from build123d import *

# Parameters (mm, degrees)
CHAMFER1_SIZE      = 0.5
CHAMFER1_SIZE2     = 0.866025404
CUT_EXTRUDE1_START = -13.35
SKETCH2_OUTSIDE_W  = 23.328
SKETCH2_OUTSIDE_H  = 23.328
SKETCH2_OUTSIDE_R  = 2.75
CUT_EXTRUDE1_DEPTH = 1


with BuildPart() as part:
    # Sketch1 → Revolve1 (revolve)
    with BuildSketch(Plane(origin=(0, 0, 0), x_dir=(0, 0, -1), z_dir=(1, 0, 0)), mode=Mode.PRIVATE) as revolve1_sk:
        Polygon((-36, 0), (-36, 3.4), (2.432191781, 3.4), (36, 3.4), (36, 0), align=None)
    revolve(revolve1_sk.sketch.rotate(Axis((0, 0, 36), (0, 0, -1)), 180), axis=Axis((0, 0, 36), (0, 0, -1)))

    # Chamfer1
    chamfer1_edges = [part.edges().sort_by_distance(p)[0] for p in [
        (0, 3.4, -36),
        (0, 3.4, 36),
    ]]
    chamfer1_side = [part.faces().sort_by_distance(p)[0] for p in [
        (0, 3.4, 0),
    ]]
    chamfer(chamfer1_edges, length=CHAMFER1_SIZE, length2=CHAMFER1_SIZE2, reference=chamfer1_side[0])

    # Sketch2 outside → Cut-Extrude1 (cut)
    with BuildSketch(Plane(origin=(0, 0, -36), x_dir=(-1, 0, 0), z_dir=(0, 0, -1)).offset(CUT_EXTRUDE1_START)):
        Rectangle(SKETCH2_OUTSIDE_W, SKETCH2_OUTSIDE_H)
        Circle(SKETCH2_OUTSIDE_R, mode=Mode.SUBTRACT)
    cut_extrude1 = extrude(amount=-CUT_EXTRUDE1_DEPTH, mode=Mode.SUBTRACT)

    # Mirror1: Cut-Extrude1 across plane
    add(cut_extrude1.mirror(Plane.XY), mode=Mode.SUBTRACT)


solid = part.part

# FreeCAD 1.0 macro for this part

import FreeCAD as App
import Part
import Sketcher
Q = App.Units.Quantity


def edges_at(feature, points):
    """Names of the edges that pass closest to the given points."""
    edges = feature.Shape.Edges
    near = lambda p: min(range(len(edges)), key=lambda i: edges[i].distToShape(Part.Vertex(*p))[0])
    return sorted({f"Edge{near(p) + 1}" for p in points})

doc = App.newDocument("Part")
body = doc.addObject("PartDesign::Body", "Body")

sketch1 = body.newObject("Sketcher::SketchObject", "Sketch")
sketch1.AttachmentSupport = (doc.getObject("YZ_Plane"), [""])
sketch1.MapMode = "FlatFace"
sketch1.addGeometry(Part.LineSegment(App.Vector(3.4, 36, 0), App.Vector(0, 36, 0)), False)
sketch1.addGeometry(Part.LineSegment(App.Vector(0, 36, 0), App.Vector(0, -36, 0)), False)
sketch1.addGeometry(Part.LineSegment(App.Vector(0, -36, 0), App.Vector(3.4, -36, 0)), False)
sketch1.addGeometry(Part.LineSegment(App.Vector(3.4, -36, 0), App.Vector(3.4, 36, 0)), False)
sketch1.addConstraint(Sketcher.Constraint("Coincident", 0, 2, 1, 1))
sketch1.addConstraint(Sketcher.Constraint("Coincident", 1, 2, 2, 1))
sketch1.addConstraint(Sketcher.Constraint("Coincident", 2, 2, 3, 1))
sketch1.addConstraint(Sketcher.Constraint("Coincident", 3, 2, 0, 1))
sketch1.addConstraint(Sketcher.Constraint("Horizontal", 0))
sketch1.addConstraint(Sketcher.Constraint("Vertical", 1))
sketch1.addConstraint(Sketcher.Constraint("Horizontal", 2))
sketch1.addConstraint(Sketcher.Constraint("Vertical", 3))
sketch1.addConstraint(Sketcher.Constraint("Symmetric", 0, 2, 1, 2, -1, 1))
sketch1.addConstraint(Sketcher.Constraint("DistanceY", 1, 2, 1, 1, Q("72 mm")))
sketch1.addConstraint(Sketcher.Constraint("DistanceX", 0, 2, 0, 1, Q("3.4 mm")))
revolution = body.newObject("PartDesign::Revolution", "Revolution")
revolution.Profile = sketch1
revolution.ReferenceAxis = (sketch1, ["V_Axis"])
revolution.Angle = 360
doc.recompute()

chamfer = body.newObject("PartDesign::Chamfer", "Chamfer")
chamfer.Base = (revolution, edges_at(revolution, [(0, 3.4, -36), (0, 3.4, 36)]))
chamfer.ChamferType = "Two distances"
chamfer.Size = 0.5
chamfer.Size2 = 0.866025
chamfer.FlipDirection = True

sketch2 = body.newObject("Sketcher::SketchObject", "Sketch001")
sketch2.AttachmentSupport = (doc.getObject("XY_Plane"), [""])
sketch2.MapMode = "FlatFace"
sketch2.AttachmentOffset = App.Placement(App.Vector(0, 0, -22.65), App.Rotation())
sketch2.addGeometry(Part.LineSegment(App.Vector(11.7, 11.7, 0), App.Vector(11.7, -11.7, 0)), False)
sketch2.addGeometry(Part.LineSegment(App.Vector(11.7, -11.7, 0), App.Vector(-11.7, -11.7, 0)), False)
sketch2.addGeometry(Part.LineSegment(App.Vector(-11.7, -11.7, 0), App.Vector(-11.7, 11.7, 0)), False)
sketch2.addGeometry(Part.LineSegment(App.Vector(-11.7, 11.7, 0), App.Vector(11.7, 11.7, 0)), False)
sketch2.addGeometry(Part.Circle(App.Vector(0, 0, 0), App.Vector(0, 0, 1), 2.8), False)
sketch2.addConstraint(Sketcher.Constraint("Coincident", 0, 2, 1, 1))
sketch2.addConstraint(Sketcher.Constraint("Coincident", 1, 2, 2, 1))
sketch2.addConstraint(Sketcher.Constraint("Coincident", 2, 2, 3, 1))
sketch2.addConstraint(Sketcher.Constraint("Coincident", 3, 2, 0, 1))
sketch2.addConstraint(Sketcher.Constraint("Vertical", 0))
sketch2.addConstraint(Sketcher.Constraint("Horizontal", 1))
sketch2.addConstraint(Sketcher.Constraint("Vertical", 2))
sketch2.addConstraint(Sketcher.Constraint("Horizontal", 3))
sketch2.addConstraint(Sketcher.Constraint("Coincident", 4, 3, -1, 1))
sketch2.addConstraint(Sketcher.Constraint("Symmetric", 0, 2, 2, 2, -1, 1))
sketch2.addConstraint(Sketcher.Constraint("Equal", 3, 0))
sketch2.addConstraint(Sketcher.Constraint("Diameter", 4, Q("5.5 mm")))
sketch2.addConstraint(Sketcher.Constraint("DistanceX", 1, 2, 1, 1, Q("23.328 mm")))
pocket1 = body.newObject("PartDesign::Pocket", "Pocket")
pocket1.Profile = sketch2
pocket1.Length = 1
pocket1.Reversed = True
doc.recompute()

mirrored = body.newObject("PartDesign::Mirrored", "Mirrored")
mirrored.Originals = [pocket1]
mirrored.MirrorPlane = (doc.getObject("XY_Plane"), [""])
body.Tip = mirrored

doc.recompute()
